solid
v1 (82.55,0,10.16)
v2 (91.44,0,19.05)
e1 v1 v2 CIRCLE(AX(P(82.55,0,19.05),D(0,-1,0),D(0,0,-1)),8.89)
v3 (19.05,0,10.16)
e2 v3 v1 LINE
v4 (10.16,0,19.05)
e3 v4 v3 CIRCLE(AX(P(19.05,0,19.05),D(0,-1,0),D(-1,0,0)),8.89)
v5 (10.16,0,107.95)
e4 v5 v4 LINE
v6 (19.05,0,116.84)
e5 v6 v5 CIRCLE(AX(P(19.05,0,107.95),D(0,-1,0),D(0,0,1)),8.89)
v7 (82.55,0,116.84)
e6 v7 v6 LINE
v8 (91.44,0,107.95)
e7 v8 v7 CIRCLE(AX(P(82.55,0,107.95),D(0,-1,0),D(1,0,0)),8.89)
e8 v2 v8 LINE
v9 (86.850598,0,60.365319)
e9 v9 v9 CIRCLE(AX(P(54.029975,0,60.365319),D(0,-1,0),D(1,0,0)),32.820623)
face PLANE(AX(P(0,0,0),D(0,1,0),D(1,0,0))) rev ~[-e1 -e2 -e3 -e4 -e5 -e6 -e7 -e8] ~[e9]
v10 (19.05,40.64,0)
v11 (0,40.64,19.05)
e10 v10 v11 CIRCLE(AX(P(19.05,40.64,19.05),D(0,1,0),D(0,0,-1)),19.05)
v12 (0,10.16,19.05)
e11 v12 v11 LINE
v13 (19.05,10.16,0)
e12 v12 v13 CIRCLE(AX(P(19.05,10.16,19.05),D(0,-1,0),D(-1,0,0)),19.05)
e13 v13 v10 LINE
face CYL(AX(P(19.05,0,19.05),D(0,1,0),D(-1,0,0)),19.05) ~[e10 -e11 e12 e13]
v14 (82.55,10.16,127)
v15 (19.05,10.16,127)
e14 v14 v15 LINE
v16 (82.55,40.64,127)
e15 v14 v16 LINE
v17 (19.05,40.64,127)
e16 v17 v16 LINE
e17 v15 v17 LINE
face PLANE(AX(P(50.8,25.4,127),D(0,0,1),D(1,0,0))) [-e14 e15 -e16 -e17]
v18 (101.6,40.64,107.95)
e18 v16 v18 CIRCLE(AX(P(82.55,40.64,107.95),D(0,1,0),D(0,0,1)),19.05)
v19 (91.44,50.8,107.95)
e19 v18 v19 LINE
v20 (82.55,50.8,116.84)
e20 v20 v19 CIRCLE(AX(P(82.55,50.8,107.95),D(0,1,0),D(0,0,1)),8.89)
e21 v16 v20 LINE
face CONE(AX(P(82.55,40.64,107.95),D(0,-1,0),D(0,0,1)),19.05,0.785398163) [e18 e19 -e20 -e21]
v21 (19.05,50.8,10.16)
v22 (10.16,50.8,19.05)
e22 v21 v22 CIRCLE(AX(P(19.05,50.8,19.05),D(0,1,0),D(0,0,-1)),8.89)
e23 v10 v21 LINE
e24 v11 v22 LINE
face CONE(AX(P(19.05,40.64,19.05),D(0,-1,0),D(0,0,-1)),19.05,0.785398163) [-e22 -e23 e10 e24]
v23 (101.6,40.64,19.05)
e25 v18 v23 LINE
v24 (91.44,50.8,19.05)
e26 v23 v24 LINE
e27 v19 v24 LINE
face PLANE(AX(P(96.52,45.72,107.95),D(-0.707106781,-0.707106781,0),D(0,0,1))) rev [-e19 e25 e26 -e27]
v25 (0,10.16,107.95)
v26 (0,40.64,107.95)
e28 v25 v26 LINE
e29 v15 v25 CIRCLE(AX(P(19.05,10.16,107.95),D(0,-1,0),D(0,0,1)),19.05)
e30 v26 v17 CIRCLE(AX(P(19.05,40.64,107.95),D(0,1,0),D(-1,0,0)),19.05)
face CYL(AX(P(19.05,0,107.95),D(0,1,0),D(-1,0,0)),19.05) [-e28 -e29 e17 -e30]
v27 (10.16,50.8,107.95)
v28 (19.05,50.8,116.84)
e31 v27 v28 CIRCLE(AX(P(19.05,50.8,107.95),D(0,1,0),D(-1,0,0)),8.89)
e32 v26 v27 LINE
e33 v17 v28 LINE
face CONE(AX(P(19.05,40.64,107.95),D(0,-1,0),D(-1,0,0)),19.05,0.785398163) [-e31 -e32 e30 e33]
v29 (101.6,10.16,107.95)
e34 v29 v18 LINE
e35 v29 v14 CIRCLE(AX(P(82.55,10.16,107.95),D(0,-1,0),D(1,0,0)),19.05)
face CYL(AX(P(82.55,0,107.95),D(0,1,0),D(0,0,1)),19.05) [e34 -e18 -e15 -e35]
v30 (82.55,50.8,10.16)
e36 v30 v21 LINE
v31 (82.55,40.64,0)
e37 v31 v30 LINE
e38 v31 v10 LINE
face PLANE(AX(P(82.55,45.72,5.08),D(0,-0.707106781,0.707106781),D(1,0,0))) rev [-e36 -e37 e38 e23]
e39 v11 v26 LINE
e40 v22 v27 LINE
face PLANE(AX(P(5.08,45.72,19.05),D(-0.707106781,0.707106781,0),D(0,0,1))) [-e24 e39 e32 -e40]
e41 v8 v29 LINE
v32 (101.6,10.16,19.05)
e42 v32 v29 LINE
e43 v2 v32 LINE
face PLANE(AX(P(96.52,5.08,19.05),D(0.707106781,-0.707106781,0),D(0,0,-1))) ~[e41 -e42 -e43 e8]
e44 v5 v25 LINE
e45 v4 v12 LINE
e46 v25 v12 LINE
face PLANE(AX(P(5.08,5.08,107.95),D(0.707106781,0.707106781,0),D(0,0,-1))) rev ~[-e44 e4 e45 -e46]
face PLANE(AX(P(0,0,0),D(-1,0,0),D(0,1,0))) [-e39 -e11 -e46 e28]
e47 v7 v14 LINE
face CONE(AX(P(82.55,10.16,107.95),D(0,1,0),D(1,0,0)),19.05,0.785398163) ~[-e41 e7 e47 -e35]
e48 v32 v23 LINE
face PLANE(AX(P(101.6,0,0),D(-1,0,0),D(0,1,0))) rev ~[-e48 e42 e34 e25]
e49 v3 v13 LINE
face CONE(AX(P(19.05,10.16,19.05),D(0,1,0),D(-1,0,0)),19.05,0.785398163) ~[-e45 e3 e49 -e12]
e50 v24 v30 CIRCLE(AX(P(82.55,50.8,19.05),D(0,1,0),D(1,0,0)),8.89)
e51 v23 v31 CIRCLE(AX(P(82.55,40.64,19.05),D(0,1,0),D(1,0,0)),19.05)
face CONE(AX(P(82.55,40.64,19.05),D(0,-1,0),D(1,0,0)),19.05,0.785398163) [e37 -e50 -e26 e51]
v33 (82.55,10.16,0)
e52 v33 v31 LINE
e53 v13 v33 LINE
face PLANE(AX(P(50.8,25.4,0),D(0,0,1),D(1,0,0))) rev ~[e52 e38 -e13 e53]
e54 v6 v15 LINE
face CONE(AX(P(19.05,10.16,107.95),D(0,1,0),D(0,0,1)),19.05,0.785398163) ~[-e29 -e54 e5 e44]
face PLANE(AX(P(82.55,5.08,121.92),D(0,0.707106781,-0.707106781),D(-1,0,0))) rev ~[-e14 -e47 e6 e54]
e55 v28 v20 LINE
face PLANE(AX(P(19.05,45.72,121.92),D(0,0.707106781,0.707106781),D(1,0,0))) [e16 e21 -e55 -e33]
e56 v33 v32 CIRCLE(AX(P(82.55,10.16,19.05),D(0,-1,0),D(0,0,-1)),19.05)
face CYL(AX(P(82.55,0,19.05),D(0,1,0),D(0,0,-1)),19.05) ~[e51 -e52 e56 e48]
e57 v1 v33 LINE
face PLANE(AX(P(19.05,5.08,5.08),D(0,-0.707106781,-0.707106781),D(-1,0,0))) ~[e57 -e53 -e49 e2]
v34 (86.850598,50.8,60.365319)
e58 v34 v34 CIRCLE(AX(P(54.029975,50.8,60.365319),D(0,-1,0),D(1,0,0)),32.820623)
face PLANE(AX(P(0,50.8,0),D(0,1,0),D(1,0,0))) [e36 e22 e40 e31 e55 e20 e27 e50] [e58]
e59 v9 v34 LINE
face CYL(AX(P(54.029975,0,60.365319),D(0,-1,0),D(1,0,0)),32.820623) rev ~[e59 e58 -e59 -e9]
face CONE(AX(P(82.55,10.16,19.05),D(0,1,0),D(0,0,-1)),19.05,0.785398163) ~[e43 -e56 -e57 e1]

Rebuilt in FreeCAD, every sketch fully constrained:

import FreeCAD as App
import Part
import Sketcher
Q = App.Units.Quantity


def edges_at(feature, points):
    """Names of the edges that pass closest to the given points."""
    edges = feature.Shape.Edges
    near = lambda p: min(range(len(edges)), key=lambda i: edges[i].distToShape(Part.Vertex(*p))[0])
    return sorted({f"Edge{near(p) + 1}" for p in points})

doc = App.newDocument("Part")
body = doc.addObject("PartDesign::Body", "Body")

# Sketch on XY plane
sketch1 = body.newObject("Sketcher::SketchObject", "Sketch")
sketch1.AttachmentSupport = (doc.getObject("XY_Plane"), [""])
sketch1.MapMode = "FlatFace"
sketch1.addGeometry([
    Part.LineSegment(App.Vector(0, 51, 0), App.Vector(0, 0, 0)),
    Part.LineSegment(App.Vector(0, 0, 0), App.Vector(102, 0, 0)),
    Part.LineSegment(App.Vector(102, 0, 0), App.Vector(102, 51, 0)),
    Part.LineSegment(App.Vector(102, 51, 0), App.Vector(0, 51, 0)),
], False)
sketch1.addConstraint([
    Sketcher.Constraint("Coincident", 0, 2, 1, 1),
    Sketcher.Constraint("Coincident", 1, 2, 2, 1),
    Sketcher.Constraint("Coincident", 2, 2, 3, 1),
    Sketcher.Constraint("Coincident", 3, 2, 0, 1),
    Sketcher.Constraint("Vertical", 0),
    Sketcher.Constraint("Horizontal", 1),
    Sketcher.Constraint("Vertical", 2),
    Sketcher.Constraint("Horizontal", 3),
    Sketcher.Constraint("Coincident", 0, 2, -1, 1),
    Sketcher.Constraint("DistanceX", 1, 1, 1, 2, Q("4 in")),
    Sketcher.Constraint("DistanceY", 0, 2, 0, 1, Q("2 in")),
])
pad1 = body.newObject("PartDesign::Pad", "Pad")
pad1.Profile = sketch1
pad1.Length = Q("5 in")

# Sketch on XZ plane
sketch2 = body.newObject("Sketcher::SketchObject", "Sketch001")
sketch2.AttachmentSupport = (doc.getObject("XZ_Plane"), [""])
sketch2.MapMode = "FlatFace"
sketch2.addGeometry(Part.Circle(App.Vector(54, 60, 0), App.Vector(0, 0, 1), 33), False)
sketch2.addConstraint([
    Sketcher.Constraint("Diameter", 0, Q("65.641246 mm")),
    Sketcher.Constraint("DistanceY", -1, 1, 0, 3, Q("60.365319 mm")),
    Sketcher.Constraint("DistanceX", -1, 1, 0, 3, Q("54.029975 mm")),
])
pocket1 = body.newObject("PartDesign::Pocket", "Pocket")
pocket1.Profile = sketch2
pocket1.Length = 120.243898
doc.recompute()

fillet = body.newObject("PartDesign::Fillet", "Fillet")
fillet.Base = (pocket1, edges_at(pocket1, [
    (101.6, 25.4, 127),
    (0, 25.4, 127),
    (101.6, 25.4, 0),
    (0, 25.4, 0),
]))
fillet.Radius = Q("0.75 in")
doc.recompute()

chamfer = body.newObject("PartDesign::Chamfer", "Chamfer")
chamfer.Base = (fillet, edges_at(fillet, [(101.6, 0, 63.5), (0, 50.8, 63.5)]))
chamfer.ChamferType = "Two distances"
chamfer.Size = Q("0.4 in")
chamfer.Size2 = Q("0.4 in")

doc.recompute()
